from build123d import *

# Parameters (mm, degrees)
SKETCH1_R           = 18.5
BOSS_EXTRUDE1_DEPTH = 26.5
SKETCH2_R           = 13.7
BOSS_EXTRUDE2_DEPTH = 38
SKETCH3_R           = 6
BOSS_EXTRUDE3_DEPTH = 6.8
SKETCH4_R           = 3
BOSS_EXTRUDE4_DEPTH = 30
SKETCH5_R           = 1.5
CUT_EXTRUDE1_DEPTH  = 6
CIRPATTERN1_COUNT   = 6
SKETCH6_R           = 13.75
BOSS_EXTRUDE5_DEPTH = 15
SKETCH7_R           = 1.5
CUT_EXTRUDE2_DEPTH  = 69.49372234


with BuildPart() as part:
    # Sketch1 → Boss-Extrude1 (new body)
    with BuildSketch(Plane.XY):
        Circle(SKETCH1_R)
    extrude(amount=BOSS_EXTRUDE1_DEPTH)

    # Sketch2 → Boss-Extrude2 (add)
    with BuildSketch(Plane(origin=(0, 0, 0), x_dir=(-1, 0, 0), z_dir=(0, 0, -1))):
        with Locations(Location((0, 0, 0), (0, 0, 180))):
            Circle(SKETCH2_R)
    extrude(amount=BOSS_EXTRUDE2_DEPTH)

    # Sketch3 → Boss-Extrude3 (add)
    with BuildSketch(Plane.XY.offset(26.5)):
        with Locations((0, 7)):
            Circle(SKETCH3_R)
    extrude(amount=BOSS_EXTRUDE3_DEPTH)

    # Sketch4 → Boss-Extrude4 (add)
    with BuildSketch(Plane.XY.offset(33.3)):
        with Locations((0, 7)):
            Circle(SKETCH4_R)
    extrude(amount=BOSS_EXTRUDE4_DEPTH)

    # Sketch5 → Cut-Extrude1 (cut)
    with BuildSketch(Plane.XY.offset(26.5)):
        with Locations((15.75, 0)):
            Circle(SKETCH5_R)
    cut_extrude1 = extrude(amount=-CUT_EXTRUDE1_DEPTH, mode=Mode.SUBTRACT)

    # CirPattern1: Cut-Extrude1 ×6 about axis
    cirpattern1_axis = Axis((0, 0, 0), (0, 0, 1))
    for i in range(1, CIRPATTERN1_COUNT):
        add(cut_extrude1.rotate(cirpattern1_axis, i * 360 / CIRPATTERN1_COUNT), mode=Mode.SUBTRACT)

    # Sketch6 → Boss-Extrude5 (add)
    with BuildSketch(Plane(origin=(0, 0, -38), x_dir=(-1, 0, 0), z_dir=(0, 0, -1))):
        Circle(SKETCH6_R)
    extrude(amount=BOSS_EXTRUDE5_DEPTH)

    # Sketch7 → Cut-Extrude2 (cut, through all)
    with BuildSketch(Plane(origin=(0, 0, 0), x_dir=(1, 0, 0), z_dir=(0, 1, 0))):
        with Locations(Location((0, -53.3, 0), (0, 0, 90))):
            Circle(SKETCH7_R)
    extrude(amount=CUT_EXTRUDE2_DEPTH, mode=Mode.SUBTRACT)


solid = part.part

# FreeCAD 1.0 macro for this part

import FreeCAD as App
import Part
import Sketcher

V = App.Vector
Q = App.Units.Quantity

doc = App.newDocument("Part")
body = doc.addObject("PartDesign::Body", "Body")

sketch1 = doc.addObject("Sketcher::SketchObject", "Sketch")
body.addObject(sketch1)
sketch1.AttachmentSupport = (doc.XY_Plane, [""])
sketch1.MapMode = "FlatFace"
sketch1.addGeometry(Part.Circle(V(0, 0, 0), V(0, 0, 1), 18), False)
sketch1.addConstraint(Sketcher.Constraint("Coincident", 0, 3, -1, 1))
sketch1.addConstraint(Sketcher.Constraint("Diameter", 0, Q("37 mm")))
pad1 = doc.addObject("PartDesign::Pad", "Pad")
body.addObject(pad1)
pad1.Profile = sketch1
pad1.Length = 26.5

sketch2 = doc.addObject("Sketcher::SketchObject", "Sketch001")
body.addObject(sketch2)
sketch2.AttachmentSupport = (doc.XY_Plane, [""])
sketch2.MapMode = "FlatFace"
sketch2.addGeometry(Part.Circle(V(0, 0, 0), V(0, 0, 1), 14), False)
sketch2.addConstraint(Sketcher.Constraint("Coincident", 0, 3, -1, 1))
sketch2.addConstraint(Sketcher.Constraint("Diameter", 0, Q("27.4 mm")))
pad2 = doc.addObject("PartDesign::Pad", "Pad001")
body.addObject(pad2)
pad2.Profile = sketch2
pad2.Length = 38
pad2.Reversed = True

sketch3 = doc.addObject("Sketcher::SketchObject", "Sketch002")
body.addObject(sketch3)
sketch3.AttachmentSupport = (doc.XY_Plane, [""])
sketch3.MapMode = "FlatFace"
sketch3.AttachmentOffset = App.Placement(V(0, 0, 26.5), App.Rotation())
sketch3.addGeometry(Part.Circle(V(0, 7, 0), V(0, 0, 1), 6), False)
sketch3.addConstraint(Sketcher.Constraint("PointOnObject", 0, 3, -2))
sketch3.addConstraint(Sketcher.Constraint("Diameter", 0, Q("12 mm")))
sketch3.addConstraint(Sketcher.Constraint("DistanceY", -1, 1, 0, 3, Q("7 mm")))
pad3 = doc.addObject("PartDesign::Pad", "Pad002")
body.addObject(pad3)
pad3.Profile = sketch3
pad3.Length = 6.8

sketch4 = doc.addObject("Sketcher::SketchObject", "Sketch003")
body.addObject(sketch4)
sketch4.AttachmentSupport = (doc.XY_Plane, [""])
sketch4.MapMode = "FlatFace"
sketch4.AttachmentOffset = App.Placement(V(0, 0, 33.3), App.Rotation())
sketch4.addGeometry(Part.Circle(V(0, 7, 0), V(0, 0, 1), 3), False)
sketch4.addConstraint(Sketcher.Constraint("PointOnObject", 0, 3, -2))
sketch4.addConstraint(Sketcher.Constraint("Diameter", 0, Q("6 mm")))
sketch4.addConstraint(Sketcher.Constraint("DistanceY", -1, 1, 0, 3, Q("7 mm")))
pad4 = doc.addObject("PartDesign::Pad", "Pad003")
body.addObject(pad4)
pad4.Profile = sketch4
pad4.Length = 30

sketch5 = doc.addObject("Sketcher::SketchObject", "Sketch004")
body.addObject(sketch5)
sketch5.AttachmentSupport = (doc.XY_Plane, [""])
sketch5.MapMode = "FlatFace"
sketch5.AttachmentOffset = App.Placement(V(0, 0, 26.5), App.Rotation())
sketch5.addGeometry(Part.Circle(V(15.8, 0, 0), V(0, 0, 1), 1.5), False)
sketch5.addConstraint(Sketcher.Constraint("PointOnObject", 0, 3, -1))
sketch5.addConstraint(Sketcher.Constraint("Diameter", 0, Q("3 mm")))
sketch5.addConstraint(Sketcher.Constraint("DistanceX", -1, 1, 0, 3, Q("15.75 mm")))
pocket1 = doc.addObject("PartDesign::Pocket", "Pocket")
body.addObject(pocket1)
pocket1.Profile = sketch5
pocket1.Length = 6
doc.recompute()

polarpattern = doc.addObject("PartDesign::PolarPattern", "PolarPattern")
body.addObject(polarpattern)
polarpattern.Originals = [pocket1]
polarpattern.Axis = (doc.Z_Axis, [""])
polarpattern.Angle = 360
polarpattern.Occurrences = 6
body.Tip = polarpattern

sketch6 = doc.addObject("Sketcher::SketchObject", "Sketch005")
body.addObject(sketch6)
sketch6.AttachmentSupport = (doc.XY_Plane, [""])
sketch6.MapMode = "FlatFace"
sketch6.AttachmentOffset = App.Placement(V(0, 0, -38), App.Rotation())
sketch6.addGeometry(Part.Circle(V(0, 0, 0), V(0, 0, 1), 14), False)
sketch6.addConstraint(Sketcher.Constraint("Coincident", 0, 3, -1, 1))
sketch6.addConstraint(Sketcher.Constraint("Diameter", 0, Q("27.5 mm")))
pad5 = doc.addObject("PartDesign::Pad", "Pad004")
body.addObject(pad5)
pad5.Profile = sketch6
pad5.Length = 15
pad5.Reversed = True

sketch7 = doc.addObject("Sketcher::SketchObject", "Sketch006")
body.addObject(sketch7)
sketch7.AttachmentSupport = (doc.XZ_Plane, [""])
sketch7.MapMode = "FlatFace"
sketch7.addGeometry(Part.Circle(V(0, 53.3, 0), V(0, 0, 1), 1.5), False)
sketch7.addConstraint(Sketcher.Constraint("PointOnObject", 0, 3, -2))
sketch7.addConstraint(Sketcher.Constraint("Diameter", 0, Q("3 mm")))
sketch7.addConstraint(Sketcher.Constraint("DistanceY", -1, 1, 0, 3, Q("53.3 mm")))
pocket2 = doc.addObject("PartDesign::Pocket", "Pocket001")
body.addObject(pocket2)
pocket2.Profile = sketch7
pocket2.Type = "ThroughAll"

doc.recompute()
